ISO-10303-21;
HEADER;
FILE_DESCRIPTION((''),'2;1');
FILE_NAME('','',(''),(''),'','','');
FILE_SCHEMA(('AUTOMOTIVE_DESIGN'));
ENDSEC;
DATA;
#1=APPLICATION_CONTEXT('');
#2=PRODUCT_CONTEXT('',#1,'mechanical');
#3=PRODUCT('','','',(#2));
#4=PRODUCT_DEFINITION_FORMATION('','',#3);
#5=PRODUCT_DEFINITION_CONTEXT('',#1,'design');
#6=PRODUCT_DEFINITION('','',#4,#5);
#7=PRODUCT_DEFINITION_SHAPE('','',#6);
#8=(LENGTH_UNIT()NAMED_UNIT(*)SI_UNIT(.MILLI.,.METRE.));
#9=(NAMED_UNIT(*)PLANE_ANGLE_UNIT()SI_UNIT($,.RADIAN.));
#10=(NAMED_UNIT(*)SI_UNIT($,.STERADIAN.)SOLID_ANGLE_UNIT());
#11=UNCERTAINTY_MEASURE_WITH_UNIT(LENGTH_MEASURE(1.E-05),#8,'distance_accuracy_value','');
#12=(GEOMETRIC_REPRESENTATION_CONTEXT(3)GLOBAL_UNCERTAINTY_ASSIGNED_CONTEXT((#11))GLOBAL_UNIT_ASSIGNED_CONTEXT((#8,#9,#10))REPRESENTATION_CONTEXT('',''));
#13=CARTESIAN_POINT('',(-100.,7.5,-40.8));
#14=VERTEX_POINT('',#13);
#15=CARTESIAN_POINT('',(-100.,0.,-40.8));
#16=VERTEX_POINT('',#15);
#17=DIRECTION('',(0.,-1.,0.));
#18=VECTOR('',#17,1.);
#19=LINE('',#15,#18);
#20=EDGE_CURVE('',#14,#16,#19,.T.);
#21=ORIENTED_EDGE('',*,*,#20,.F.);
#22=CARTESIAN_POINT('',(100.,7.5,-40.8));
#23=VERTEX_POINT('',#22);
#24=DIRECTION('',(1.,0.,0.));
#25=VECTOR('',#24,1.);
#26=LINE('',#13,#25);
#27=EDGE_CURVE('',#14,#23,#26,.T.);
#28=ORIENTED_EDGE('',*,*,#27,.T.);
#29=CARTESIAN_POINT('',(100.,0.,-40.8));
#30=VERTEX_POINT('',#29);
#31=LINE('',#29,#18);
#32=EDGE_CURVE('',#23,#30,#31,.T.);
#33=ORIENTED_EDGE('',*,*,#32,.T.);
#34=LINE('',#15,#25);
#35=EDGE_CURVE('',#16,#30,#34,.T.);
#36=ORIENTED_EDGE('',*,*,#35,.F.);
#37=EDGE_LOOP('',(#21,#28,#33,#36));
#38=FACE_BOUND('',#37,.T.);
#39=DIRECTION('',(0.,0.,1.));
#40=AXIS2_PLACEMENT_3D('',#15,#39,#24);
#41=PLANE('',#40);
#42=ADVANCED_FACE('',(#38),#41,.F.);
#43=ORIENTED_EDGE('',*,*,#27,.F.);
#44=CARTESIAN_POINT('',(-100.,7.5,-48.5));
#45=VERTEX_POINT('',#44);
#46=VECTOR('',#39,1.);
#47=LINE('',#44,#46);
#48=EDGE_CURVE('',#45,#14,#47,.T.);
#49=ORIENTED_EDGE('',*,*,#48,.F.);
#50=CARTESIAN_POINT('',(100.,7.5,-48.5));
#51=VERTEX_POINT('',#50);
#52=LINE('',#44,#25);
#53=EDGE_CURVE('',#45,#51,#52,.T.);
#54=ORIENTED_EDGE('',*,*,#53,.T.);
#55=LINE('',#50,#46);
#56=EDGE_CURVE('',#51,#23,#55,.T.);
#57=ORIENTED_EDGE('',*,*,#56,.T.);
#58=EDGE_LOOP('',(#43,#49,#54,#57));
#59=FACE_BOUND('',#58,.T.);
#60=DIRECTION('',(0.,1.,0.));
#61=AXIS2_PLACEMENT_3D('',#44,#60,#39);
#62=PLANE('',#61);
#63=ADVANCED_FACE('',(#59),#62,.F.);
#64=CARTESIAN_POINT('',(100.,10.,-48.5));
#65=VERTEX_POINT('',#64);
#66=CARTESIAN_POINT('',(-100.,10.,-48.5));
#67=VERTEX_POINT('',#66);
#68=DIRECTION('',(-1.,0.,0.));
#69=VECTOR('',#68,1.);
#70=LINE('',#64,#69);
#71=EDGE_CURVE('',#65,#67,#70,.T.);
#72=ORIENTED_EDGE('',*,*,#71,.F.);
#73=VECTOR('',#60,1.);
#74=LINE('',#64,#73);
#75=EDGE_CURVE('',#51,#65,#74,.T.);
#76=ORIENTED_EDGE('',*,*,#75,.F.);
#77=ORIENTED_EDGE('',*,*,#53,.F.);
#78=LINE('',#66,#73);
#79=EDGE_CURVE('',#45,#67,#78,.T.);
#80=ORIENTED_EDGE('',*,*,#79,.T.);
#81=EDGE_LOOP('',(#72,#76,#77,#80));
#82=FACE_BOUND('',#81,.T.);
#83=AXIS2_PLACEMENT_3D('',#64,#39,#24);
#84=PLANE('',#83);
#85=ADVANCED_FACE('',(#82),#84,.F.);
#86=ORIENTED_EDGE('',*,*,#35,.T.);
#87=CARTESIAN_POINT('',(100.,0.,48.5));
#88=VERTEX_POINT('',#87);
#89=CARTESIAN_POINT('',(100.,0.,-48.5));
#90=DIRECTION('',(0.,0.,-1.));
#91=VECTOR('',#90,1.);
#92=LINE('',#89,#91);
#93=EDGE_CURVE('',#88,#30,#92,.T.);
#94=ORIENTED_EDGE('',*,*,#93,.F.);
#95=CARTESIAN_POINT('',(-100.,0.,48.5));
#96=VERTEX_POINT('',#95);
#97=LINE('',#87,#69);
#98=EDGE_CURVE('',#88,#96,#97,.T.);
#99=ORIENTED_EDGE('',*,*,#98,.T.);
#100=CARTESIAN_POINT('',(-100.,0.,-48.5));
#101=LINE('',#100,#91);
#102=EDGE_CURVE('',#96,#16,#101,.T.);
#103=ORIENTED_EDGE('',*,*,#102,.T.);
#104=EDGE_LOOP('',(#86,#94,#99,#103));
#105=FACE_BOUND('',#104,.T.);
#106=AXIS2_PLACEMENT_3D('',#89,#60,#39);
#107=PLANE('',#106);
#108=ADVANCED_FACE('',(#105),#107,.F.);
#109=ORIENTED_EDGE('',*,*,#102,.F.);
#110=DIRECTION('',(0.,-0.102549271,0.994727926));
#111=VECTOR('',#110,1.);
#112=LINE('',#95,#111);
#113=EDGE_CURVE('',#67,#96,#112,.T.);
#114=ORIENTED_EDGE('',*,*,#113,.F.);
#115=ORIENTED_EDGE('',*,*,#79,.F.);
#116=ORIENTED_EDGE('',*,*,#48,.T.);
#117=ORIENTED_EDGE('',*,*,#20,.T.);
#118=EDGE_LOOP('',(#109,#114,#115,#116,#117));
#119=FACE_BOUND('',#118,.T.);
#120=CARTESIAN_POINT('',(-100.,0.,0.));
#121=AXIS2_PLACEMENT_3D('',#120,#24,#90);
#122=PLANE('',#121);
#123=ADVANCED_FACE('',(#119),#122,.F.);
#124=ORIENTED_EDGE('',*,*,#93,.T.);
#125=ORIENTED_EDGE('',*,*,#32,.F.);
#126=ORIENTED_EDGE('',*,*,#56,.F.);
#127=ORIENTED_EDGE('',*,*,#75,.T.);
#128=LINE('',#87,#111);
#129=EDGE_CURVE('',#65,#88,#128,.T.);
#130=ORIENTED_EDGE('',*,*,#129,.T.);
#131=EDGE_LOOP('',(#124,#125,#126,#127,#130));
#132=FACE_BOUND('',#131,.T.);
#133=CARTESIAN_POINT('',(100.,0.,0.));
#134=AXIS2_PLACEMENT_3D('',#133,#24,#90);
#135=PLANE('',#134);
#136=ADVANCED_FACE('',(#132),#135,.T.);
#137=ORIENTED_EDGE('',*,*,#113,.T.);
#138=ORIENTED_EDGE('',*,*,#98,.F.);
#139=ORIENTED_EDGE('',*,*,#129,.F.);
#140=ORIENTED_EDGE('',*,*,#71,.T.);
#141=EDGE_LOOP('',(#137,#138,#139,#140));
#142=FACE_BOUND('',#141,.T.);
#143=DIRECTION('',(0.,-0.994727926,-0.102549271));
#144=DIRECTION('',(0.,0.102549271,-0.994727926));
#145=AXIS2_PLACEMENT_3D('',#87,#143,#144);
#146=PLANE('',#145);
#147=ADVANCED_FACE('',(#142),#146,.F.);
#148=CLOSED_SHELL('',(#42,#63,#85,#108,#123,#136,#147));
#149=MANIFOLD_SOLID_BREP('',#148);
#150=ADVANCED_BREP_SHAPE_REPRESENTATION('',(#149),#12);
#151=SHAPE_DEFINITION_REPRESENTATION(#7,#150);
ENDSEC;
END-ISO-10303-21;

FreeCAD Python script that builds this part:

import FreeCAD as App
import Part
import Sketcher
from FreeCAD import Vector
Q = App.Units.Quantity


def add_polygon(sketch, points):
    """Adds a closed chain of lines whose ends are joined by coincident constraints."""
    first, n = sketch.GeometryCount, len(points)
    for a, b in zip(points, points[1:] + points[:1]):
        sketch.addGeometry(Part.LineSegment(App.Vector(*a, 0), App.Vector(*b, 0)), False)
    for i in range(n):
        sketch.addConstraint(Sketcher.Constraint("Coincident", first + i, 2, first + (i + 1) % n, 1))

doc = App.newDocument("Part")
body = doc.addObject("PartDesign::Body", "Body")

# Sketch on YZ plane
sketch1 = body.newObject("Sketcher::SketchObject", "Sketch")
sketch1.AttachmentSupport = (doc.getObject("YZ_Plane"), [""])
sketch1.MapMode = "FlatFace"
add_polygon(sketch1, [(10, -48), (0, 48), (0, -48)])  # lines 0-2
sketch1.addConstraint([
    Sketcher.Constraint("Vertical", 1),
    Sketcher.Constraint("Horizontal", 2),
    Sketcher.Constraint("Symmetric", 0, 2, 1, 2, -1, 1),
    Sketcher.Constraint("DistanceX", 2, 1, 2, 2, Q("10 mm")),
    Sketcher.Constraint("DistanceY", 1, 2, 1, 1, Q("97 mm")),
])
pad1 = body.newObject("PartDesign::Pad", "Pad")
pad1.Profile = sketch1
pad1.Length = 200
pad1.Midplane = True

# Sketch on YZ plane
sketch2 = body.newObject("Sketcher::SketchObject", "Sketch001")
sketch2.AttachmentSupport = (doc.getObject("YZ_Plane"), [""])
sketch2.MapMode = "FlatFace"
sketch2.AttachmentOffset = App.Placement(Vector(0, 0, 100), App.Rotation())
add_polygon(sketch2, [(8, -41), (0, -41), (0, -48), (8, -48)])  # lines 0-3
sketch2.addConstraint([
    Sketcher.Constraint("Horizontal", 0),
    Sketcher.Constraint("Vertical", 1),
    Sketcher.Constraint("Horizontal", 2),
    Sketcher.Constraint("Vertical", 3),
    Sketcher.Constraint("PointOnObject", 0, 2, -2),
    Sketcher.Constraint("DistanceX", 0, 2, 0, 1, Q("7.5 mm")),
    Sketcher.Constraint("DistanceY", 1, 2, 1, 1, Q("7.7 mm")),
    Sketcher.Constraint("DistanceY", 0, 2, -1, 1, Q("40.8 mm")),
])
pocket1 = body.newObject("PartDesign::Pocket", "Pocket")
pocket1.Profile = sketch2
pocket1.Type = "ThroughAll"

doc.recompute()
